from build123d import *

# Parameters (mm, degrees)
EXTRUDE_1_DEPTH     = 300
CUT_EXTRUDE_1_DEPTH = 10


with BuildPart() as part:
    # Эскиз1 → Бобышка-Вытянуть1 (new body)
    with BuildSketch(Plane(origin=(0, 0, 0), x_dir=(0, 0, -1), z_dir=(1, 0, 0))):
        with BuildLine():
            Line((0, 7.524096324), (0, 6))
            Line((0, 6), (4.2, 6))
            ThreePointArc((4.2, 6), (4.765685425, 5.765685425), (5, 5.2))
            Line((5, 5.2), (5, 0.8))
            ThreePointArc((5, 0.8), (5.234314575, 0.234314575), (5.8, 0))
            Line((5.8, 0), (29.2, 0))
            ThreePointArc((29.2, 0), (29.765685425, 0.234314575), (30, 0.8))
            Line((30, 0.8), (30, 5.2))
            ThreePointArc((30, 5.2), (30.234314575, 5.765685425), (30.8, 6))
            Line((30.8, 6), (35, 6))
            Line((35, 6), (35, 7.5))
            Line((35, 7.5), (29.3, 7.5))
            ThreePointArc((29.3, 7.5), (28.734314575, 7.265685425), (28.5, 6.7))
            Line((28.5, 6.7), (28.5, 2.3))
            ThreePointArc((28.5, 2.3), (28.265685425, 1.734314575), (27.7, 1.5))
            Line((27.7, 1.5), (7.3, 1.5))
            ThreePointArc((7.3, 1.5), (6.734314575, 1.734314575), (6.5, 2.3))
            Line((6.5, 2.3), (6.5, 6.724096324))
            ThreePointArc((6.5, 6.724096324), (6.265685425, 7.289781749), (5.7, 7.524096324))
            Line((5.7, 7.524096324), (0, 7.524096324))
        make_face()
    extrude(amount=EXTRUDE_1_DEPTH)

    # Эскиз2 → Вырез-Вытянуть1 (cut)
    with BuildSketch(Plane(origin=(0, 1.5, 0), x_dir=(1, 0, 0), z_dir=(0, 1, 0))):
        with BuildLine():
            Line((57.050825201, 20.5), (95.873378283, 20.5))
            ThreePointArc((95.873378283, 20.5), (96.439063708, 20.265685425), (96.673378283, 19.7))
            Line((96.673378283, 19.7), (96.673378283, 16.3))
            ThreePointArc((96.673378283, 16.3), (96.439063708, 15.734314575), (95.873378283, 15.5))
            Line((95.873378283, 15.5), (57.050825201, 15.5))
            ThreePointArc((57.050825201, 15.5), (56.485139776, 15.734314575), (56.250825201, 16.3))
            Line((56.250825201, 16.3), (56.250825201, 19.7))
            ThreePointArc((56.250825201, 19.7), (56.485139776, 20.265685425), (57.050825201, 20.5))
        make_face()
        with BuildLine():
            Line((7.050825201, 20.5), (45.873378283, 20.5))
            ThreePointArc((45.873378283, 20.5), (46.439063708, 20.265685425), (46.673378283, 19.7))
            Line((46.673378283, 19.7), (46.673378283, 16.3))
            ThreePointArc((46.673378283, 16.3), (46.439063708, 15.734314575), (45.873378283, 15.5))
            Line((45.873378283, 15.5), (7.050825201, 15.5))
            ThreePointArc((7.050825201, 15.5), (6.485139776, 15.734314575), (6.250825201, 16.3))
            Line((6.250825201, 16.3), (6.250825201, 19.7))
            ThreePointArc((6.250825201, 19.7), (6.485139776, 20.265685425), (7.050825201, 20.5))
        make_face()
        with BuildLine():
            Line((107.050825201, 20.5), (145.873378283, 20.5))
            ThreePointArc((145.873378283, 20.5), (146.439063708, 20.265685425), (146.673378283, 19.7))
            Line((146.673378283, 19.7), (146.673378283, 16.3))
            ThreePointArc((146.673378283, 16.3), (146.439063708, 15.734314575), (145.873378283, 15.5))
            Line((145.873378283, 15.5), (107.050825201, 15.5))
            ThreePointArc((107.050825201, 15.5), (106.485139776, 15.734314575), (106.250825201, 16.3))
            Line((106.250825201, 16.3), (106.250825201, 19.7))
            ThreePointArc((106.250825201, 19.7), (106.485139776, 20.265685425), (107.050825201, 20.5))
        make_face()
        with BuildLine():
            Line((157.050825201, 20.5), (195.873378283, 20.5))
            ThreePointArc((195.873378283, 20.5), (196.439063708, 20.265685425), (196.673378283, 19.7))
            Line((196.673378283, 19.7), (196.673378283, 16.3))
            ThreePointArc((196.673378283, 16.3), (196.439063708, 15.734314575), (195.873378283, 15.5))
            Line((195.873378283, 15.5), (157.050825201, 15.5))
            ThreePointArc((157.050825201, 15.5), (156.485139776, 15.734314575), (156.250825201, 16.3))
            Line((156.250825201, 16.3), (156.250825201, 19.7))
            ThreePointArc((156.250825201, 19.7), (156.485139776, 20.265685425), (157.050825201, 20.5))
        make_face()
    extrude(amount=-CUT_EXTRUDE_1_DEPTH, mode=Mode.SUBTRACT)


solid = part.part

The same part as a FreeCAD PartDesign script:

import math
import FreeCAD as App
import Part
import Sketcher
from FreeCAD import Vector
Q = App.Units.Quantity

doc = App.newDocument("Part")
body = doc.addObject("PartDesign::Body", "Body")

sketch1 = body.newObject("Sketcher::SketchObject", "Sketch")
sketch1.AttachmentSupport = (doc.getObject("YZ_Plane"), [""])
sketch1.MapMode = "FlatFace"
sketch1.addGeometry(Part.LineSegment(Vector(7.5, 0, 0), Vector(6, 0, 0)), False)
sketch1.addGeometry(Part.LineSegment(Vector(6, 0, 0), Vector(6, -4.2, 0)), False)
sketch1.addGeometry(Part.ArcOfCircle(Part.Circle(Vector(5.2, -4.2, 0), Vector(0, 0, 1), 0.8), math.radians(-90), math.radians(0)), False)
sketch1.addGeometry(Part.LineSegment(Vector(5.2, -5, 0), Vector(0.8, -5, 0)), False)
sketch1.addGeometry(Part.ArcOfCircle(Part.Circle(Vector(0.8, -5.8, 0), Vector(0, 0, 1), 0.8), math.radians(90), math.radians(180)), False)
sketch1.addGeometry(Part.LineSegment(Vector(0, -5.8, 0), Vector(0, -29.2, 0)), False)
sketch1.addGeometry(Part.ArcOfCircle(Part.Circle(Vector(0.8, -29.2, 0), Vector(0, 0, 1), 0.8), math.radians(180), math.radians(270)), False)
sketch1.addGeometry(Part.LineSegment(Vector(0.8, -30, 0), Vector(5.2, -30, 0)), False)
sketch1.addGeometry(Part.ArcOfCircle(Part.Circle(Vector(5.2, -30.8, 0), Vector(0, 0, 1), 0.8), math.radians(0), math.radians(90)), False)
sketch1.addGeometry(Part.LineSegment(Vector(6, -30.8, 0), Vector(6, -35, 0)), False)
sketch1.addGeometry(Part.LineSegment(Vector(6, -35, 0), Vector(7.5, -35, 0)), False)
sketch1.addGeometry(Part.LineSegment(Vector(7.5, -35, 0), Vector(7.5, -29.3, 0)), False)
sketch1.addGeometry(Part.ArcOfCircle(Part.Circle(Vector(6.7, -29.3, 0), Vector(0, 0, 1), 0.8), math.radians(0), math.radians(90)), False)
sketch1.addGeometry(Part.LineSegment(Vector(6.7, -28.5, 0), Vector(2.3, -28.5, 0)), False)
sketch1.addGeometry(Part.ArcOfCircle(Part.Circle(Vector(2.3, -27.7, 0), Vector(0, 0, 1), 0.8), math.radians(180), math.radians(270)), False)
sketch1.addGeometry(Part.LineSegment(Vector(1.5, -27.7, 0), Vector(1.5, -7.3, 0)), False)
sketch1.addGeometry(Part.ArcOfCircle(Part.Circle(Vector(2.3, -7.3, 0), Vector(0, 0, 1), 0.8), math.radians(90), math.radians(180)), False)
sketch1.addGeometry(Part.LineSegment(Vector(2.3, -6.5, 0), Vector(6.7, -6.5, 0)), False)
sketch1.addGeometry(Part.ArcOfCircle(Part.Circle(Vector(6.7, -5.7, 0), Vector(0, 0, 1), 0.8), math.radians(-90), math.radians(0)), False)
sketch1.addGeometry(Part.LineSegment(Vector(7.5, -5.7, 0), Vector(7.5, 0, 0)), False)
sketch1.addConstraint(Sketcher.Constraint("Coincident", 0, 2, 1, 1))
sketch1.addConstraint(Sketcher.Constraint("Tangent", 1, 2, 2, 2))
sketch1.addConstraint(Sketcher.Constraint("Tangent", 2, 1, 3, 1))
sketch1.addConstraint(Sketcher.Constraint("Tangent", 3, 2, 4, 1))
sketch1.addConstraint(Sketcher.Constraint("Tangent", 4, 2, 5, 1))
sketch1.addConstraint(Sketcher.Constraint("Tangent", 5, 2, 6, 1))
sketch1.addConstraint(Sketcher.Constraint("Tangent", 6, 2, 7, 1))
sketch1.addConstraint(Sketcher.Constraint("Tangent", 7, 2, 8, 2))
sketch1.addConstraint(Sketcher.Constraint("Tangent", 8, 1, 9, 1))
sketch1.addConstraint(Sketcher.Constraint("Coincident", 9, 2, 10, 1))
sketch1.addConstraint(Sketcher.Constraint("Coincident", 10, 2, 11, 1))
sketch1.addConstraint(Sketcher.Constraint("Tangent", 11, 2, 12, 1))
sketch1.addConstraint(Sketcher.Constraint("Tangent", 12, 2, 13, 1))
sketch1.addConstraint(Sketcher.Constraint("Tangent", 13, 2, 14, 2))
sketch1.addConstraint(Sketcher.Constraint("Tangent", 14, 1, 15, 1))
sketch1.addConstraint(Sketcher.Constraint("Tangent", 15, 2, 16, 2))
sketch1.addConstraint(Sketcher.Constraint("Tangent", 16, 1, 17, 1))
sketch1.addConstraint(Sketcher.Constraint("Tangent", 17, 2, 18, 1))
sketch1.addConstraint(Sketcher.Constraint("Tangent", 18, 2, 19, 1))
sketch1.addConstraint(Sketcher.Constraint("Coincident", 19, 2, 0, 1))
sketch1.addConstraint(Sketcher.Constraint("Horizontal", 0))
sketch1.addConstraint(Sketcher.Constraint("Vertical", 1))
sketch1.addConstraint(Sketcher.Constraint("Horizontal", 3))
sketch1.addConstraint(Sketcher.Constraint("Vertical", 5))
sketch1.addConstraint(Sketcher.Constraint("Horizontal", 7))
sketch1.addConstraint(Sketcher.Constraint("Vertical", 9))
sketch1.addConstraint(Sketcher.Constraint("Horizontal", 10))
sketch1.addConstraint(Sketcher.Constraint("Vertical", 11))
sketch1.addConstraint(Sketcher.Constraint("Horizontal", 13))
sketch1.addConstraint(Sketcher.Constraint("Vertical", 15))
sketch1.addConstraint(Sketcher.Constraint("Horizontal", 17))
sketch1.addConstraint(Sketcher.Constraint("Vertical", 19))
sketch1.addConstraint(Sketcher.Constraint("Equal", 2, 4))
sketch1.addConstraint(Sketcher.Constraint("Equal", 4, 6))
sketch1.addConstraint(Sketcher.Constraint("Equal", 6, 8))
sketch1.addConstraint(Sketcher.Constraint("Equal", 8, 12))
sketch1.addConstraint(Sketcher.Constraint("Equal", 12, 14))
sketch1.addConstraint(Sketcher.Constraint("Equal", 14, 16))
sketch1.addConstraint(Sketcher.Constraint("Equal", 16, 18))
sketch1.addConstraint(Sketcher.Constraint("PointOnObject", 0, 2, -1))
sketch1.addConstraint(Sketcher.Constraint("PointOnObject", 4, 2, -2))
sketch1.addConstraint(Sketcher.Constraint("Vertical", 2, 3, 8, 3))
sketch1.addConstraint(Sketcher.Constraint("Equal", 7, 13))
sketch1.addConstraint(Sketcher.Constraint("Equal", 1, 9))
sketch1.addConstraint(Sketcher.Constraint("Equal", 11, 19))
sketch1.addConstraint(Sketcher.Constraint("Radius", 2, Q("0.8 mm")))
sketch1.addConstraint(Sketcher.Constraint("DistanceX", 3, 2, 3, 1, Q("4.4 mm")))
sketch1.addConstraint(Sketcher.Constraint("DistanceX", 10, 1, 10, 2, Q("1.5 mm")))
sketch1.addConstraint(Sketcher.Constraint("DistanceY", 1, 2, 1, 1, Q("4.2 mm")))
sketch1.addConstraint(Sketcher.Constraint("DistanceY", 5, 2, 5, 1, Q("23.4 mm")))
sketch1.addConstraint(Sketcher.Constraint("DistanceY", 11, 1, 11, 2, Q("5.7 mm")))
sketch1.addConstraint(Sketcher.Constraint("DistanceX", 0, 2, 0, 1, Q("1.524096 mm")))
pad1 = body.newObject("PartDesign::Pad", "Pad")
pad1.Profile = sketch1
pad1.Length = 300

sketch2 = body.newObject("Sketcher::SketchObject", "Sketch001")
sketch2.AttachmentSupport = (doc.getObject("XZ_Plane"), [""])
sketch2.MapMode = "FlatFace"
sketch2.AttachmentOffset = App.Placement(Vector(0, 0, -1.5), App.Rotation())
sketch2.addGeometry(Part.LineSegment(Vector(95.9, -20.5, 0), Vector(57.1, -20.5, 0)), False)
sketch2.addGeometry(Part.ArcOfCircle(Part.Circle(Vector(57.1, -19.7, 0), Vector(0, 0, 1), 0.8), math.radians(180), math.radians(270)), False)
sketch2.addGeometry(Part.LineSegment(Vector(56.3, -19.7, 0), Vector(56.3, -16.3, 0)), False)
sketch2.addGeometry(Part.ArcOfCircle(Part.Circle(Vector(57.1, -16.3, 0), Vector(0, 0, 1), 0.8), math.radians(90), math.radians(180)), False)
sketch2.addGeometry(Part.LineSegment(Vector(57.1, -15.5, 0), Vector(95.9, -15.5, 0)), False)
sketch2.addGeometry(Part.ArcOfCircle(Part.Circle(Vector(95.9, -16.3, 0), Vector(0, 0, 1), 0.8), math.radians(0), math.radians(90)), False)
sketch2.addGeometry(Part.LineSegment(Vector(96.7, -16.3, 0), Vector(96.7, -19.7, 0)), False)
sketch2.addGeometry(Part.ArcOfCircle(Part.Circle(Vector(95.9, -19.7, 0), Vector(0, 0, 1), 0.8), math.radians(-90), math.radians(0)), False)
sketch2.addGeometry(Part.LineSegment(Vector(45.9, -20.5, 0), Vector(7.1, -20.5, 0)), False)
sketch2.addGeometry(Part.ArcOfCircle(Part.Circle(Vector(7.1, -19.7, 0), Vector(0, 0, 1), 0.8), math.radians(180), math.radians(270)), False)
sketch2.addGeometry(Part.LineSegment(Vector(6.3, -19.7, 0), Vector(6.3, -16.3, 0)), False)
sketch2.addGeometry(Part.ArcOfCircle(Part.Circle(Vector(7.1, -16.3, 0), Vector(0, 0, 1), 0.8), math.radians(90), math.radians(180)), False)
sketch2.addGeometry(Part.LineSegment(Vector(7.1, -15.5, 0), Vector(45.9, -15.5, 0)), False)
sketch2.addGeometry(Part.ArcOfCircle(Part.Circle(Vector(45.9, -16.3, 0), Vector(0, 0, 1), 0.8), math.radians(0), math.radians(90)), False)
sketch2.addGeometry(Part.LineSegment(Vector(46.7, -16.3, 0), Vector(46.7, -19.7, 0)), False)
sketch2.addGeometry(Part.ArcOfCircle(Part.Circle(Vector(45.9, -19.7, 0), Vector(0, 0, 1), 0.8), math.radians(-90), math.radians(0)), False)
sketch2.addGeometry(Part.LineSegment(Vector(145.9, -20.5, 0), Vector(107.1, -20.5, 0)), False)
sketch2.addGeometry(Part.ArcOfCircle(Part.Circle(Vector(107.1, -19.7, 0), Vector(0, 0, 1), 0.8), math.radians(180), math.radians(270)), False)
sketch2.addGeometry(Part.LineSegment(Vector(106.3, -19.7, 0), Vector(106.3, -16.3, 0)), False)
sketch2.addGeometry(Part.ArcOfCircle(Part.Circle(Vector(107.1, -16.3, 0), Vector(0, 0, 1), 0.8), math.radians(90), math.radians(180)), False)
sketch2.addGeometry(Part.LineSegment(Vector(107.1, -15.5, 0), Vector(145.9, -15.5, 0)), False)
sketch2.addGeometry(Part.ArcOfCircle(Part.Circle(Vector(145.9, -16.3, 0), Vector(0, 0, 1), 0.8), math.radians(0), math.radians(90)), False)
sketch2.addGeometry(Part.LineSegment(Vector(146.7, -16.3, 0), Vector(146.7, -19.7, 0)), False)
sketch2.addGeometry(Part.ArcOfCircle(Part.Circle(Vector(145.9, -19.7, 0), Vector(0, 0, 1), 0.8), math.radians(-90), math.radians(0)), False)
sketch2.addGeometry(Part.LineSegment(Vector(195.9, -20.5, 0), Vector(157.1, -20.5, 0)), False)
sketch2.addGeometry(Part.ArcOfCircle(Part.Circle(Vector(157.1, -19.7, 0), Vector(0, 0, 1), 0.8), math.radians(180), math.radians(270)), False)
sketch2.addGeometry(Part.LineSegment(Vector(156.3, -19.7, 0), Vector(156.3, -16.3, 0)), False)
sketch2.addGeometry(Part.ArcOfCircle(Part.Circle(Vector(157.1, -16.3, 0), Vector(0, 0, 1), 0.8), math.radians(90), math.radians(180)), False)
sketch2.addGeometry(Part.LineSegment(Vector(157.1, -15.5, 0), Vector(195.9, -15.5, 0)), False)
sketch2.addGeometry(Part.ArcOfCircle(Part.Circle(Vector(195.9, -16.3, 0), Vector(0, 0, 1), 0.8), math.radians(0), math.radians(90)), False)
sketch2.addGeometry(Part.LineSegment(Vector(196.7, -16.3, 0), Vector(196.7, -19.7, 0)), False)
sketch2.addGeometry(Part.ArcOfCircle(Part.Circle(Vector(195.9, -19.7, 0), Vector(0, 0, 1), 0.8), math.radians(-90), math.radians(0)), False)
sketch2.addConstraint(Sketcher.Constraint("Tangent", 0, 2, 1, 2))
sketch2.addConstraint(Sketcher.Constraint("Tangent", 1, 1, 2, 1))
sketch2.addConstraint(Sketcher.Constraint("Tangent", 2, 2, 3, 2))
sketch2.addConstraint(Sketcher.Constraint("Tangent", 3, 1, 4, 1))
sketch2.addConstraint(Sketcher.Constraint("Tangent", 4, 2, 5, 2))
sketch2.addConstraint(Sketcher.Constraint("Tangent", 5, 1, 6, 1))
sketch2.addConstraint(Sketcher.Constraint("Tangent", 6, 2, 7, 2))
sketch2.addConstraint(Sketcher.Constraint("Tangent", 7, 1, 0, 1))
sketch2.addConstraint(Sketcher.Constraint("Tangent", 8, 2, 9, 2))
sketch2.addConstraint(Sketcher.Constraint("Tangent", 9, 1, 10, 1))
sketch2.addConstraint(Sketcher.Constraint("Tangent", 10, 2, 11, 2))
sketch2.addConstraint(Sketcher.Constraint("Tangent", 11, 1, 12, 1))
sketch2.addConstraint(Sketcher.Constraint("Tangent", 12, 2, 13, 2))
sketch2.addConstraint(Sketcher.Constraint("Tangent", 13, 1, 14, 1))
sketch2.addConstraint(Sketcher.Constraint("Tangent", 14, 2, 15, 2))
sketch2.addConstraint(Sketcher.Constraint("Tangent", 15, 1, 8, 1))
sketch2.addConstraint(Sketcher.Constraint("Tangent", 16, 2, 17, 2))
sketch2.addConstraint(Sketcher.Constraint("Tangent", 17, 1, 18, 1))
sketch2.addConstraint(Sketcher.Constraint("Tangent", 18, 2, 19, 2))
sketch2.addConstraint(Sketcher.Constraint("Tangent", 19, 1, 20, 1))
sketch2.addConstraint(Sketcher.Constraint("Tangent", 20, 2, 21, 2))
sketch2.addConstraint(Sketcher.Constraint("Tangent", 21, 1, 22, 1))
sketch2.addConstraint(Sketcher.Constraint("Tangent", 22, 2, 23, 2))
sketch2.addConstraint(Sketcher.Constraint("Tangent", 23, 1, 16, 1))
sketch2.addConstraint(Sketcher.Constraint("Tangent", 24, 2, 25, 2))
sketch2.addConstraint(Sketcher.Constraint("Tangent", 25, 1, 26, 1))
sketch2.addConstraint(Sketcher.Constraint("Tangent", 26, 2, 27, 2))
sketch2.addConstraint(Sketcher.Constraint("Tangent", 27, 1, 28, 1))
sketch2.addConstraint(Sketcher.Constraint("Tangent", 28, 2, 29, 2))
sketch2.addConstraint(Sketcher.Constraint("Tangent", 29, 1, 30, 1))
sketch2.addConstraint(Sketcher.Constraint("Tangent", 30, 2, 31, 2))
sketch2.addConstraint(Sketcher.Constraint("Tangent", 31, 1, 24, 1))
sketch2.addConstraint(Sketcher.Constraint("Horizontal", 0))
sketch2.addConstraint(Sketcher.Constraint("Vertical", 2))
sketch2.addConstraint(Sketcher.Constraint("Horizontal", 4))
sketch2.addConstraint(Sketcher.Constraint("Vertical", 6))
sketch2.addConstraint(Sketcher.Constraint("Horizontal", 8))
sketch2.addConstraint(Sketcher.Constraint("Vertical", 10))
sketch2.addConstraint(Sketcher.Constraint("Horizontal", 12))
sketch2.addConstraint(Sketcher.Constraint("Vertical", 14))
sketch2.addConstraint(Sketcher.Constraint("Horizontal", 16))
sketch2.addConstraint(Sketcher.Constraint("Vertical", 18))
sketch2.addConstraint(Sketcher.Constraint("Horizontal", 20))
sketch2.addConstraint(Sketcher.Constraint("Vertical", 22))
sketch2.addConstraint(Sketcher.Constraint("Horizontal", 24))
sketch2.addConstraint(Sketcher.Constraint("Vertical", 26))
sketch2.addConstraint(Sketcher.Constraint("Horizontal", 28))
sketch2.addConstraint(Sketcher.Constraint("Vertical", 30))
sketch2.addConstraint(Sketcher.Constraint("Equal", 1, 3))
sketch2.addConstraint(Sketcher.Constraint("Equal", 3, 5))
sketch2.addConstraint(Sketcher.Constraint("Equal", 5, 7))
sketch2.addConstraint(Sketcher.Constraint("Equal", 7, 9))
sketch2.addConstraint(Sketcher.Constraint("Equal", 9, 11))
sketch2.addConstraint(Sketcher.Constraint("Equal", 11, 13))
sketch2.addConstraint(Sketcher.Constraint("Equal", 13, 15))
sketch2.addConstraint(Sketcher.Constraint("Equal", 15, 17))
sketch2.addConstraint(Sketcher.Constraint("Equal", 17, 19))
sketch2.addConstraint(Sketcher.Constraint("Equal", 19, 21))
sketch2.addConstraint(Sketcher.Constraint("Equal", 21, 23))
sketch2.addConstraint(Sketcher.Constraint("Equal", 23, 25))
sketch2.addConstraint(Sketcher.Constraint("Equal", 25, 27))
sketch2.addConstraint(Sketcher.Constraint("Equal", 27, 29))
sketch2.addConstraint(Sketcher.Constraint("Equal", 29, 31))
sketch2.addConstraint(Sketcher.Constraint("Horizontal", 7, 3, 9, 3))
sketch2.addConstraint(Sketcher.Constraint("Horizontal", 5, 3, 11, 3))
sketch2.addConstraint(Sketcher.Constraint("Horizontal", 15, 3, 17, 3))
sketch2.addConstraint(Sketcher.Constraint("Horizontal", 13, 3, 19, 3))
sketch2.addConstraint(Sketcher.Constraint("Horizontal", 23, 3, 25, 3))
sketch2.addConstraint(Sketcher.Constraint("Horizontal", 21, 3, 27, 3))
sketch2.addConstraint(Sketcher.Constraint("Equal", 4, 8))
sketch2.addConstraint(Sketcher.Constraint("Equal", 12, 16))
sketch2.addConstraint(Sketcher.Constraint("Equal", 20, 24))
sketch2.addConstraint(Sketcher.Constraint("Radius", 1, Q("0.8 mm")))
sketch2.addConstraint(Sketcher.Constraint("DistanceY", 2, 1, 2, 2, Q("3.4 mm")))
sketch2.addConstraint(Sketcher.Constraint("DistanceX", 9, 3, 1, 3, Q("50 mm")))
sketch2.addConstraint(Sketcher.Constraint("DistanceX", 1, 3, 17, 3, Q("50 mm")))
sketch2.addConstraint(Sketcher.Constraint("DistanceX", 17, 3, 25, 3, Q("50 mm")))
sketch2.addConstraint(Sketcher.Constraint("DistanceY", 1, 3, -1, 1, Q("19.7 mm")))
sketch2.addConstraint(Sketcher.Constraint("DistanceX", 0, 2, 0, 1, Q("38.822553 mm")))
sketch2.addConstraint(Sketcher.Constraint("DistanceX", -1, 1, 5, 3, Q("95.873378 mm")))
pocket1 = body.newObject("PartDesign::Pocket", "Pocket")
pocket1.Profile = sketch2
pocket1.Length = 10
pocket1.Reversed = True

doc.recompute()
